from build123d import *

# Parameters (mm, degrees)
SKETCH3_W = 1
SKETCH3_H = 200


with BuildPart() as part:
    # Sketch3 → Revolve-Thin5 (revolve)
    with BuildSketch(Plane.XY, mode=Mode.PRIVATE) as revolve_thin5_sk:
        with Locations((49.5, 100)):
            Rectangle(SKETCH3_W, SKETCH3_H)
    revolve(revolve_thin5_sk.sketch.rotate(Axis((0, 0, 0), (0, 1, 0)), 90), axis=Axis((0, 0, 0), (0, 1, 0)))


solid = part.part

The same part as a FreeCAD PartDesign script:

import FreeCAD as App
import Part
import Sketcher
from FreeCAD import Vector
Q = App.Units.Quantity

doc = App.newDocument("Part")
body = doc.addObject("PartDesign::Body", "Body")

# Sketch on XY plane
sketch1 = body.newObject("Sketcher::SketchObject", "Sketch")
sketch1.AttachmentSupport = (doc.getObject("XY_Plane"), [""])
sketch1.MapMode = "FlatFace"
sketch1.addGeometry([
    Part.LineSegment(Vector(49, 200, 0), Vector(49, 0, 0)),
    Part.LineSegment(Vector(49, 0, 0), Vector(50, 0, 0)),
    Part.LineSegment(Vector(50, 0, 0), Vector(50, 200, 0)),
    Part.LineSegment(Vector(50, 200, 0), Vector(49, 200, 0)),
], False)
sketch1.addConstraint([
    Sketcher.Constraint("Coincident", 0, 2, 1, 1),
    Sketcher.Constraint("Coincident", 1, 2, 2, 1),
    Sketcher.Constraint("Coincident", 2, 2, 3, 1),
    Sketcher.Constraint("Coincident", 3, 2, 0, 1),
    Sketcher.Constraint("Vertical", 0),
    Sketcher.Constraint("Horizontal", 1),
    Sketcher.Constraint("Vertical", 2),
    Sketcher.Constraint("Horizontal", 3),
    Sketcher.Constraint("PointOnObject", 0, 2, -1),
    Sketcher.Constraint("DistanceX", 1, 1, 1, 2, Q("1 mm")),
    Sketcher.Constraint("DistanceY", 0, 2, 0, 1, Q("200 mm")),
    Sketcher.Constraint("DistanceX", -1, 1, 0, 2, Q("49 mm")),
])
revolution = body.newObject("PartDesign::Revolution", "Revolution")
revolution.Profile = sketch1
revolution.ReferenceAxis = (sketch1, ["V_Axis"])
revolution.Angle = 360

doc.recompute()
